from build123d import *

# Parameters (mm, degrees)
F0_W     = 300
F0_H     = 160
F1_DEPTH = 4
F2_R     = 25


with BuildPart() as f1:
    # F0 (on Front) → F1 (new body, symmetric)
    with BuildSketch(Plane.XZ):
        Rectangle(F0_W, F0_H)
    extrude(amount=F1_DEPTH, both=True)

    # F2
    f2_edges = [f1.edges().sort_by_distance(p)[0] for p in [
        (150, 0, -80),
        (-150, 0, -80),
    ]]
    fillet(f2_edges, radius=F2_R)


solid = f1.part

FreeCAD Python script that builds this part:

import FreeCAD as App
import Part
import Sketcher


def edges_at(feature, points):
    """Names of the edges that pass closest to the given points."""
    edges = feature.Shape.Edges
    near = lambda p: min(range(len(edges)), key=lambda i: edges[i].distToShape(Part.Vertex(*p))[0])
    return sorted({f"Edge{near(p) + 1}" for p in points})


def add_polygon(sketch, points):
    """Adds a closed chain of lines whose ends are joined by coincident constraints."""
    first, n = sketch.GeometryCount, len(points)
    for a, b in zip(points, points[1:] + points[:1]):
        sketch.addGeometry(Part.LineSegment(App.Vector(*a, 0), App.Vector(*b, 0)), False)
    for i in range(n):
        sketch.addConstraint(Sketcher.Constraint("Coincident", first + i, 2, first + (i + 1) % n, 1))

doc = App.newDocument("Part")
body = doc.addObject("PartDesign::Body", "Body")

sketch1 = body.newObject("Sketcher::SketchObject", "Sketch")
sketch1.AttachmentSupport = (doc.getObject("XZ_Plane"), [""])
sketch1.MapMode = "FlatFace"
add_polygon(sketch1, [(-150, 80), (-150, -80), (150, -80), (150, 80)])
sketch1.addConstraint([
    Sketcher.Constraint("Vertical", 0),
    Sketcher.Constraint("Horizontal", 1),
    Sketcher.Constraint("Vertical", 2),
    Sketcher.Constraint("Horizontal", 3),
    Sketcher.Constraint("Symmetric", 0, 2, 2, 2, -1, 1),
    Sketcher.Constraint("DistanceX", 1, 1, 1, 2, 300.0),
    Sketcher.Constraint("DistanceY", 0, 2, 0, 1, 160.0),
])
pad1 = body.newObject("PartDesign::Pad", "Pad")
pad1.Profile = sketch1
pad1.Length = 8
pad1.Midplane = True
doc.recompute()

fillet = body.newObject("PartDesign::Fillet", "Fillet")
fillet.Base = (pad1, edges_at(pad1, [(150, 0, -80), (-150, 0, -80)]))
fillet.Radius = 25

doc.recompute()
